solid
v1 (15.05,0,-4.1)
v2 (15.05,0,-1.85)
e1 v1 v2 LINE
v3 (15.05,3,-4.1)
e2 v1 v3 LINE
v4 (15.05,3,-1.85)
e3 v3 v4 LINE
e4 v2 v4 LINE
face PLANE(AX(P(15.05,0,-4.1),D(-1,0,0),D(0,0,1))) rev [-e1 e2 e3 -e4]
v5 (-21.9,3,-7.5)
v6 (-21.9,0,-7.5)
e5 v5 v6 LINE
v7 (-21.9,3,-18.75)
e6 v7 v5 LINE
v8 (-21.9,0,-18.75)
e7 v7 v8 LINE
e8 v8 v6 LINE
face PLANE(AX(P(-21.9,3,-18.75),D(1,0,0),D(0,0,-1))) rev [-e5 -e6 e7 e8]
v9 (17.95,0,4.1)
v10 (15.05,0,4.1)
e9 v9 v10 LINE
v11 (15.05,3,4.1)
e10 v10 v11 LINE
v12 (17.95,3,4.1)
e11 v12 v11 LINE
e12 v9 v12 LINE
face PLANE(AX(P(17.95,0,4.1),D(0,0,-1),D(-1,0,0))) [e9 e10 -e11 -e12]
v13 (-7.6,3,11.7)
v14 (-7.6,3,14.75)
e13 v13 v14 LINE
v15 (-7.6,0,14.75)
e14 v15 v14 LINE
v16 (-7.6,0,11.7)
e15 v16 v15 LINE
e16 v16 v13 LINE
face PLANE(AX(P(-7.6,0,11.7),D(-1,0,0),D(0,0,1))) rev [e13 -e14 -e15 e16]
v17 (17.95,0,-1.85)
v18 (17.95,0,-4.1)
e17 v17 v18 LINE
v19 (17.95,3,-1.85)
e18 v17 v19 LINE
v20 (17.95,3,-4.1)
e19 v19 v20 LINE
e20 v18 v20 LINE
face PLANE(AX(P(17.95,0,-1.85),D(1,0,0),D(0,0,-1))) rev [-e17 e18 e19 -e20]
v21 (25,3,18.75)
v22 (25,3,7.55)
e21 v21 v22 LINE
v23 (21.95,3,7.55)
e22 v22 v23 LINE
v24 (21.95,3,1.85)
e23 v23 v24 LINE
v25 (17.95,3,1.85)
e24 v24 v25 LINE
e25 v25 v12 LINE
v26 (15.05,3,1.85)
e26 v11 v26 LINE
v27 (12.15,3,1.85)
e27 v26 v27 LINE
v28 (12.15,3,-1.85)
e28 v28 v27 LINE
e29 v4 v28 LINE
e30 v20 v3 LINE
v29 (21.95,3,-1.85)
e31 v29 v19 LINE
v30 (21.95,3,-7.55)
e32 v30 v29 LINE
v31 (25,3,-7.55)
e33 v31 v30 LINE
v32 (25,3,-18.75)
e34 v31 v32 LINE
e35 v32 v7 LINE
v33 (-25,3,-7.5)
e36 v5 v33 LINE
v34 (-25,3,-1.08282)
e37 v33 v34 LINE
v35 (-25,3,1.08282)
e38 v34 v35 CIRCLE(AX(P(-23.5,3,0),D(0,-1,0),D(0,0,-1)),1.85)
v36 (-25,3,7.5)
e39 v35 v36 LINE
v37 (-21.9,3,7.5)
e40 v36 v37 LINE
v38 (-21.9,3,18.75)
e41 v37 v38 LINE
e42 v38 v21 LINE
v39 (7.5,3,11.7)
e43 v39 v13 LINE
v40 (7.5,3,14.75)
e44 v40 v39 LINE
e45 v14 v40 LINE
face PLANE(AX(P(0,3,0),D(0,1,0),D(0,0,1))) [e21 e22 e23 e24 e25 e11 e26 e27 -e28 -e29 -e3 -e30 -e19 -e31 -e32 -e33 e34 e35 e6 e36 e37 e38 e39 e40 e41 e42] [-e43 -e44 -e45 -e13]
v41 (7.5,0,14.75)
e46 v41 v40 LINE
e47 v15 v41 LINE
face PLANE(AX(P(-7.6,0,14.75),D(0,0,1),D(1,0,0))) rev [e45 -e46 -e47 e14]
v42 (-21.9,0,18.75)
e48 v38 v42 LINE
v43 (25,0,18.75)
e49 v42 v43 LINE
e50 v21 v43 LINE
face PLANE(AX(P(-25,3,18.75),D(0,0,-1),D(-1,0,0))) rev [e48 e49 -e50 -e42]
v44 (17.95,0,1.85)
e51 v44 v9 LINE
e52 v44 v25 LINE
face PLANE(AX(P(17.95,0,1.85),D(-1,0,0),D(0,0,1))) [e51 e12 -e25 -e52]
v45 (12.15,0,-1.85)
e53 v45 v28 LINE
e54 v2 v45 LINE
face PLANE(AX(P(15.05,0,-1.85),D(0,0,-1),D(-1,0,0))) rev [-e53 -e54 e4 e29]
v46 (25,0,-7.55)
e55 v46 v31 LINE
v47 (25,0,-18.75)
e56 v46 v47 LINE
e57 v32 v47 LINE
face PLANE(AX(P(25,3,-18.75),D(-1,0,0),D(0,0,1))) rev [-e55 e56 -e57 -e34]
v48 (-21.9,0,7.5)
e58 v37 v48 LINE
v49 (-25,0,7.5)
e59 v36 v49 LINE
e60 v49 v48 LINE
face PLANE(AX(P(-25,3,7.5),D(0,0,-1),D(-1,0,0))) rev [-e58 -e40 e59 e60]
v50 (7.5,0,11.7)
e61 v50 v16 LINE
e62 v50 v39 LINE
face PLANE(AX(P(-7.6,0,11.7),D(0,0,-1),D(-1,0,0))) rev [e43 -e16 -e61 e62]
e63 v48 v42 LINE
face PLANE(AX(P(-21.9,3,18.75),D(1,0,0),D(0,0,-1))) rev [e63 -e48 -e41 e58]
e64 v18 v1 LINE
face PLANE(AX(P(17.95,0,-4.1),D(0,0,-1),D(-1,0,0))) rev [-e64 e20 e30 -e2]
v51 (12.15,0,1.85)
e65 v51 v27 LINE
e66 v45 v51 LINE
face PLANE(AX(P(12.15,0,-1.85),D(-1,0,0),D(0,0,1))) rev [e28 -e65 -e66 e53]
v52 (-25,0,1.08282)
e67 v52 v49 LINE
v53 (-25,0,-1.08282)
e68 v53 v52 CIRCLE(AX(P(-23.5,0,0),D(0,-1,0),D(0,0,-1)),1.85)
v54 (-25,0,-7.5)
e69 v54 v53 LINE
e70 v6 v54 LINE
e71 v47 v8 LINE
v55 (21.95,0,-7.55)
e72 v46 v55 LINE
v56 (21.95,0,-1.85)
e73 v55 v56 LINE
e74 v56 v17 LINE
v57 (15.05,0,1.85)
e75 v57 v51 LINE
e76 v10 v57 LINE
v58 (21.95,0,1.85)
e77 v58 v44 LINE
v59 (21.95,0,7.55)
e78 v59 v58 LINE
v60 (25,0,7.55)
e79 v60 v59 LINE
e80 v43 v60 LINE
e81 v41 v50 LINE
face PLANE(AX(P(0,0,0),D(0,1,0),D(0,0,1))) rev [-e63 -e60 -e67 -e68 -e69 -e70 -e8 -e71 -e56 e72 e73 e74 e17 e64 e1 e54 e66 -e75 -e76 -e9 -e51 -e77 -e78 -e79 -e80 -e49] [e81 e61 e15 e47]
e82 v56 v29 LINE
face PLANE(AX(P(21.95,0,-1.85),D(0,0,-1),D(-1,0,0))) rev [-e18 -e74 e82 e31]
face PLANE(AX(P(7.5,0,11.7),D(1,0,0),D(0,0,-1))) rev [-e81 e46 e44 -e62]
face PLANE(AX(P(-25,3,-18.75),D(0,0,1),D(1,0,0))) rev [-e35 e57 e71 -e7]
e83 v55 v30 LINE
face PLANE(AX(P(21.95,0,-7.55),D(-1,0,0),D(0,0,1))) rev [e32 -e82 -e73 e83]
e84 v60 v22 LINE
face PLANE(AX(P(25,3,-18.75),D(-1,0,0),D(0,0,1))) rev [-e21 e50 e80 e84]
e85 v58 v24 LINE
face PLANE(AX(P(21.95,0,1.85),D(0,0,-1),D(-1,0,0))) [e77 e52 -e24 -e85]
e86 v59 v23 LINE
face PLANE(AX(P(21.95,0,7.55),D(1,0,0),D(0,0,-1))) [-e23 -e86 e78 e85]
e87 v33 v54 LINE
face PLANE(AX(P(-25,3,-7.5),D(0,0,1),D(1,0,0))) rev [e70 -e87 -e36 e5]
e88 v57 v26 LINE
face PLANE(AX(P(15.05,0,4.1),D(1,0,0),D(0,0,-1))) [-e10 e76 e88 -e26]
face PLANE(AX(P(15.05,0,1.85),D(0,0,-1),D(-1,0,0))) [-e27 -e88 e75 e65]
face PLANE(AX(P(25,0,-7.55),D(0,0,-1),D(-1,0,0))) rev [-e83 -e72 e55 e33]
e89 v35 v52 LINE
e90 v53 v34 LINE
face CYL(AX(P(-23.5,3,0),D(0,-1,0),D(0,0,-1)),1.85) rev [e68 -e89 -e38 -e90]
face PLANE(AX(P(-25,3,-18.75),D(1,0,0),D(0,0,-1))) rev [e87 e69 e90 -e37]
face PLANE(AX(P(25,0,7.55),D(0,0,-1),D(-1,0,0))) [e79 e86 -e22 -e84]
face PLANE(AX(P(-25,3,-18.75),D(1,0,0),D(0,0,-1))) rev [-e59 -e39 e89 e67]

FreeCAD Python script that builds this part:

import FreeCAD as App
import Part
import Sketcher
from FreeCAD import Vector


def add_polygon(sketch, points):
    """Adds a closed chain of lines whose ends are joined by coincident constraints."""
    first, n = sketch.GeometryCount, len(points)
    for a, b in zip(points, points[1:] + points[:1]):
        sketch.addGeometry(Part.LineSegment(App.Vector(*a, 0), App.Vector(*b, 0)), False)
    for i in range(n):
        sketch.addConstraint(Sketcher.Constraint("Coincident", first + i, 2, first + (i + 1) % n, 1))

doc = App.newDocument("Part")
body = doc.addObject("PartDesign::Body", "Body")

sketch1 = body.newObject("Sketcher::SketchObject", "Sketch")
sketch1.AttachmentSupport = (doc.getObject("XZ_Plane"), [""])
sketch1.MapMode = "FlatFace"
add_polygon(sketch1, [(-25, -18.75), (-25, 18.75), (25, 18.75), (25, -18.75)])
sketch1.addConstraint(Sketcher.Constraint("Vertical", 0))
sketch1.addConstraint(Sketcher.Constraint("Horizontal", 1))
sketch1.addConstraint(Sketcher.Constraint("Vertical", 2))
sketch1.addConstraint(Sketcher.Constraint("Horizontal", 3))
sketch1.addConstraint(Sketcher.Constraint("Symmetric", 0, 2, 2, 2, -1, 1))
sketch1.addConstraint(Sketcher.Constraint("DistanceX", 1, 1, 1, 2, 50.0))
sketch1.addConstraint(Sketcher.Constraint("DistanceY", 0, 1, 0, 2, 37.5))
pad1 = body.newObject("PartDesign::Pad", "Pad")
pad1.Profile = sketch1
pad1.Length = 3
pad1.Reversed = True

sketch2 = body.newObject("Sketcher::SketchObject", "Sketch001")
sketch2.AttachmentSupport = (doc.getObject("XZ_Plane"), [""])
sketch2.MapMode = "FlatFace"
sketch2.AttachmentOffset = App.Placement(Vector(0, 0, -3), App.Rotation())
add_polygon(sketch2, [(-7.6, 11.7), (-7.6, 14.75), (7.5, 14.75), (7.5, 11.7)])
sketch2.addConstraint(Sketcher.Constraint("Vertical", 0))
sketch2.addConstraint(Sketcher.Constraint("Horizontal", 1))
sketch2.addConstraint(Sketcher.Constraint("Vertical", 2))
sketch2.addConstraint(Sketcher.Constraint("Horizontal", 3))
sketch2.addConstraint(Sketcher.Constraint("DistanceX", 1, 1, 1, 2, 15.1))
sketch2.addConstraint(Sketcher.Constraint("DistanceY", 0, 1, 0, 2, 3.05))
sketch2.addConstraint(Sketcher.Constraint("DistanceX", 0, 2, -1, 1, 7.6))
sketch2.addConstraint(Sketcher.Constraint("DistanceY", -1, 1, 2, 2, 11.7))
pocket1 = body.newObject("PartDesign::Pocket", "Pocket")
pocket1.Profile = sketch2
pocket1.Type = "ThroughAll"
pocket1.Reversed = True

sketch3 = body.newObject("Sketcher::SketchObject", "Sketch002")
sketch3.AttachmentSupport = (doc.getObject("XZ_Plane"), [""])
sketch3.MapMode = "FlatFace"
sketch3.AttachmentOffset = App.Placement(Vector(0, 0, -3), App.Rotation())
add_polygon(sketch3, [(25, -7.55), (21.95, -7.55), (21.95, -1.85), (17.95, -1.85), (17.95, -4.1), (15.05, -4.1), (15.05, -1.85), (12.15, -1.85), (12.15, 0), (25, 0)])
sketch3.addConstraint(Sketcher.Constraint("Horizontal", 0))
sketch3.addConstraint(Sketcher.Constraint("Vertical", 1))
sketch3.addConstraint(Sketcher.Constraint("Horizontal", 2))
sketch3.addConstraint(Sketcher.Constraint("Vertical", 3))
sketch3.addConstraint(Sketcher.Constraint("Horizontal", 4))
sketch3.addConstraint(Sketcher.Constraint("Vertical", 5))
sketch3.addConstraint(Sketcher.Constraint("Horizontal", 6))
sketch3.addConstraint(Sketcher.Constraint("Vertical", 7))
sketch3.addConstraint(Sketcher.Constraint("Horizontal", 8))
sketch3.addConstraint(Sketcher.Constraint("Vertical", 9))
sketch3.addConstraint(Sketcher.Constraint("PointOnObject", 7, 2, -1))
sketch3.addConstraint(Sketcher.Constraint("Horizontal", 2, 2, 5, 2))
sketch3.addConstraint(Sketcher.Constraint("Equal", 4, 6))
sketch3.addConstraint(Sketcher.Constraint("DistanceX", 2, 2, 2, 1, 4.0))
sketch3.addConstraint(Sketcher.Constraint("DistanceX", 4, 2, 4, 1, 2.9))
sketch3.addConstraint(Sketcher.Constraint("DistanceY", 1, 1, 1, 2, 5.7))
sketch3.addConstraint(Sketcher.Constraint("DistanceX", -1, 1, 8, 2, 25.0))
sketch3.addConstraint(Sketcher.Constraint("DistanceX", 0, 2, 0, 1, 3.05))
sketch3.addConstraint(Sketcher.Constraint("DistanceY", 3, 2, 3, 1, 2.25))
sketch3.addConstraint(Sketcher.Constraint("DistanceY", 7, 1, 7, 2, 1.85))
pocket2 = body.newObject("PartDesign::Pocket", "Pocket001")
pocket2.Profile = sketch3
pocket2.Type = "ThroughAll"
pocket2.Reversed = True
doc.recompute()

mirrored = body.newObject("PartDesign::Mirrored", "Mirrored")
mirrored.Originals = [pocket2]
mirrored.MirrorPlane = (doc.getObject("XY_Plane"), [""])
body.Tip = mirrored

sketch4 = body.newObject("Sketcher::SketchObject", "Sketch003")
sketch4.AttachmentSupport = (doc.getObject("XZ_Plane"), [""])
sketch4.MapMode = "FlatFace"
add_polygon(sketch4, [(-25, -7.5), (-25, -18.75), (-21.9, -18.75), (-21.9, -7.5)])
add_polygon(sketch4, [(-25, 18.75), (-25, 7.5), (-21.9, 7.5), (-21.9, 18.75)])
sketch4.addConstraint(Sketcher.Constraint("Vertical", 0))
sketch4.addConstraint(Sketcher.Constraint("Horizontal", 1))
sketch4.addConstraint(Sketcher.Constraint("Vertical", 2))
sketch4.addConstraint(Sketcher.Constraint("Horizontal", 3))
sketch4.addConstraint(Sketcher.Constraint("Vertical", 4))
sketch4.addConstraint(Sketcher.Constraint("Horizontal", 5))
sketch4.addConstraint(Sketcher.Constraint("Vertical", 6))
sketch4.addConstraint(Sketcher.Constraint("Horizontal", 7))
sketch4.addConstraint(Sketcher.Constraint("Symmetric", 3, 2, 4, 2, -1))
sketch4.addConstraint(Sketcher.Constraint("Symmetric", 1, 2, 6, 2, -1))
sketch4.addConstraint(Sketcher.Constraint("DistanceX", 1, 1, 1, 2, 3.1))
sketch4.addConstraint(Sketcher.Constraint("DistanceX", 0, 2, -1, 1, 25.0))
sketch4.addConstraint(Sketcher.Constraint("DistanceY", 3, 2, 4, 2, 15.0))
sketch4.addConstraint(Sketcher.Constraint("DistanceY", 0, 2, 0, 1, 11.25))
pocket3 = body.newObject("PartDesign::Pocket", "Pocket002")
pocket3.Profile = sketch4
pocket3.Type = "ThroughAll"

sketch5 = body.newObject("Sketcher::SketchObject", "Sketch004")
sketch5.AttachmentSupport = (doc.getObject("XZ_Plane"), [""])
sketch5.MapMode = "FlatFace"
sketch5.addGeometry(Part.Circle(Vector(-23.5, 0, 0), Vector(0, 0, 1), 1.85), False)
sketch5.addConstraint(Sketcher.Constraint("PointOnObject", 0, 3, -1))
sketch5.addConstraint(Sketcher.Constraint("Diameter", 0, 3.7))
sketch5.addConstraint(Sketcher.Constraint("DistanceX", 0, 3, -1, 1, 23.5))
pocket4 = body.newObject("PartDesign::Pocket", "Pocket003")
pocket4.Profile = sketch5
pocket4.Type = "ThroughAll"

doc.recompute()
